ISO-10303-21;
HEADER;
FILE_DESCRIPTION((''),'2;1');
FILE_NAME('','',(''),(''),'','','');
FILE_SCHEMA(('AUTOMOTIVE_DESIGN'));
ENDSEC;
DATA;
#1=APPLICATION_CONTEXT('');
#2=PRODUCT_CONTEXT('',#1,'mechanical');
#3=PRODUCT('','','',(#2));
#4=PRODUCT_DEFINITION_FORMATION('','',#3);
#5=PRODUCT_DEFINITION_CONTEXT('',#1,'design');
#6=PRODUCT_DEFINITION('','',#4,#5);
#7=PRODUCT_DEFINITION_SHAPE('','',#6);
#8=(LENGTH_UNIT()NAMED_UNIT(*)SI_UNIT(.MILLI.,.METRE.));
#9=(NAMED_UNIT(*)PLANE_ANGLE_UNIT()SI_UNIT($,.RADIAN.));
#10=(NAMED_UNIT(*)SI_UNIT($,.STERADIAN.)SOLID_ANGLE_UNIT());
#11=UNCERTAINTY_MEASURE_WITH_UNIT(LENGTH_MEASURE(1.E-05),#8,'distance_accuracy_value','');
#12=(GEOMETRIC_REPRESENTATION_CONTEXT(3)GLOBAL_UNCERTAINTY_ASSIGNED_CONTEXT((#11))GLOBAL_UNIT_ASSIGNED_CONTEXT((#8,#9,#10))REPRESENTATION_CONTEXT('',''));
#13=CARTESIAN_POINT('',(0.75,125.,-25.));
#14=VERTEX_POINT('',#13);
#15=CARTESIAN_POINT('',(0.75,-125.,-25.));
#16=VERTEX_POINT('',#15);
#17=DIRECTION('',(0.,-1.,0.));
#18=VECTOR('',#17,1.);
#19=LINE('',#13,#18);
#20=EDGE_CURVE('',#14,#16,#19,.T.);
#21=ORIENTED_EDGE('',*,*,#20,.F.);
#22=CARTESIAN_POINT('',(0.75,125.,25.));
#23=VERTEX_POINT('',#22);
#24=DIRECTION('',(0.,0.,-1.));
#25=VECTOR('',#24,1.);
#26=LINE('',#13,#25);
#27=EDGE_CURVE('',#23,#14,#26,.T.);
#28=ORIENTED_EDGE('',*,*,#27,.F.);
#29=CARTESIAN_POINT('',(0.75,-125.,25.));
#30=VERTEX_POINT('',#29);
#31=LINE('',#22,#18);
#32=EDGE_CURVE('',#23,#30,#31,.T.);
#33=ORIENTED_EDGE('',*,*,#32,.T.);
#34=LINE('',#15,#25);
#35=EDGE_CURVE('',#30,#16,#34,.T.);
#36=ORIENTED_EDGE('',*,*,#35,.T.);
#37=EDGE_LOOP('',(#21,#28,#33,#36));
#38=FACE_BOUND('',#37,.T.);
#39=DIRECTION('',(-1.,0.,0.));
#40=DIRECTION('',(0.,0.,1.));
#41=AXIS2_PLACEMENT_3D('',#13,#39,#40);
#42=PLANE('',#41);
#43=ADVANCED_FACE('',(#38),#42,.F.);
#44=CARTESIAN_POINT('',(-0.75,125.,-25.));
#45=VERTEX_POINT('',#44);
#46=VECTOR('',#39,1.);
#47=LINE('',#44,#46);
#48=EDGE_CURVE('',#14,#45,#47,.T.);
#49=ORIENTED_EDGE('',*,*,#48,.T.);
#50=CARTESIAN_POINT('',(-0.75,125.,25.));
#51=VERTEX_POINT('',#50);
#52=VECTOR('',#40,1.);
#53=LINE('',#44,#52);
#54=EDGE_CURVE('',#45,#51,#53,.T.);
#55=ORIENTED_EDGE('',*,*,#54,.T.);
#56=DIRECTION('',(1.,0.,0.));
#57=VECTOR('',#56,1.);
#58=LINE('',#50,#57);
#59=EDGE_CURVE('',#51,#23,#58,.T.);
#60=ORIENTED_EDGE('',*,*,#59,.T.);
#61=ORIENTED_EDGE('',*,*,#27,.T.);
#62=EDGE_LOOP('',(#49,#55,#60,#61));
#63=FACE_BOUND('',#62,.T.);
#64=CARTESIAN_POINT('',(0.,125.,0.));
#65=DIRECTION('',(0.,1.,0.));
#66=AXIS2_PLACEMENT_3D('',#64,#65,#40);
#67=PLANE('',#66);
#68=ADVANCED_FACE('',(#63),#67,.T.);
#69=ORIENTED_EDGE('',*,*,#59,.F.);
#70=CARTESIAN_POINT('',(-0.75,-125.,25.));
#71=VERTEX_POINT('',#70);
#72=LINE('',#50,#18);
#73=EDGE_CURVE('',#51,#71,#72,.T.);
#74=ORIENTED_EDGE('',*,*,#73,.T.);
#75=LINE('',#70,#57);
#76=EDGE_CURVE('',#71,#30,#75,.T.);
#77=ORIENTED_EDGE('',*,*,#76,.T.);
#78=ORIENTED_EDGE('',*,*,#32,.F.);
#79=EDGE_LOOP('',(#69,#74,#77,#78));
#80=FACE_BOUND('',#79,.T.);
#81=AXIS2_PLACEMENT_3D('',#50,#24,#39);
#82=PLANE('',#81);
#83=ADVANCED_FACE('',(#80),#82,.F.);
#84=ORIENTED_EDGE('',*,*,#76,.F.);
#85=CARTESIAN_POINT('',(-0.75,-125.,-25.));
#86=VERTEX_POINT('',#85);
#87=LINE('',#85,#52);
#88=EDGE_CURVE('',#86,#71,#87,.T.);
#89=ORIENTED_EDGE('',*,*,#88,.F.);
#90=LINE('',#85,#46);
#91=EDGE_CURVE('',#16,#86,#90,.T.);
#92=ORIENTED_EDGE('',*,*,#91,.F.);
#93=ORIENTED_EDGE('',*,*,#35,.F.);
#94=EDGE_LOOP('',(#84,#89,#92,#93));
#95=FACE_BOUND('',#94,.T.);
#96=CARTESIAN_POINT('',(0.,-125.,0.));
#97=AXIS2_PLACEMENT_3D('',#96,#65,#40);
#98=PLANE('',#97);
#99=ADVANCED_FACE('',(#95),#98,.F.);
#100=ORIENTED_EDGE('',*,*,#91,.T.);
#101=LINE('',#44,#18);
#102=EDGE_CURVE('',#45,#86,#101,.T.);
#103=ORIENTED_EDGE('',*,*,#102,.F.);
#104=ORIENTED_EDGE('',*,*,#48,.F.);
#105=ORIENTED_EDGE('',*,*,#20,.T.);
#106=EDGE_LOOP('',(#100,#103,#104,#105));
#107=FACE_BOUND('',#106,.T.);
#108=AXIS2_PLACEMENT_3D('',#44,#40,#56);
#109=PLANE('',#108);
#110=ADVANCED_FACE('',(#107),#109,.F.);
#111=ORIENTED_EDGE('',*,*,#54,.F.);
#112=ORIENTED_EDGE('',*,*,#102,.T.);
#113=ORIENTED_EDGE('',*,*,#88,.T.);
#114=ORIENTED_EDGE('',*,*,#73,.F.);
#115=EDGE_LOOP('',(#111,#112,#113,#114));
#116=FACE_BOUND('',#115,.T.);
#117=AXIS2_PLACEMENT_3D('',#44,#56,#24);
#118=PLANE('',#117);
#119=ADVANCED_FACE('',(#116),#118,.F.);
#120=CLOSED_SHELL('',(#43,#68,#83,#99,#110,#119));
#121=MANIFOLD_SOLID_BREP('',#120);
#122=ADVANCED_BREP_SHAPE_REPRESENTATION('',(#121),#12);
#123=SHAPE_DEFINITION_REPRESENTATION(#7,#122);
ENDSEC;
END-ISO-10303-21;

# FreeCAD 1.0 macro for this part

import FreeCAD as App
import Part
import Sketcher

V = App.Vector
Q = App.Units.Quantity


def add_polygon(sketch, points):
    """Adds a closed chain of lines whose ends are joined by coincident constraints."""
    first, n = sketch.GeometryCount, len(points)
    for a, b in zip(points, points[1:] + points[:1]):
        sketch.addGeometry(Part.LineSegment(App.Vector(*a, 0), App.Vector(*b, 0)), False)
    for i in range(n):
        sketch.addConstraint(Sketcher.Constraint("Coincident", first + i, 2, first + (i + 1) % n, 1))

doc = App.newDocument("Part")
body = doc.addObject("PartDesign::Body", "Body")

# Sketch on XZ plane
sketch1 = body.newObject("Sketcher::SketchObject", "Sketch")
sketch1.AttachmentSupport = (doc.getObject("XZ_Plane"), [""])
sketch1.MapMode = "FlatFace"
add_polygon(sketch1, [(-0.8, -25), (-0.8, 25), (0.8, 25), (0.8, -25)])  # lines 0-3
sketch1.addConstraint([
    Sketcher.Constraint("Vertical", 0),
    Sketcher.Constraint("Horizontal", 1),
    Sketcher.Constraint("Vertical", 2),
    Sketcher.Constraint("Horizontal", 3),
    Sketcher.Constraint("Symmetric", 0, 2, 2, 2, -1, 1),
    Sketcher.Constraint("DistanceY", 0, 1, 0, 2, Q("50 mm")),
    Sketcher.Constraint("DistanceX", 1, 1, 1, 2, Q("1.5 mm")),
])
pad1 = body.newObject("PartDesign::Pad", "Pad")
pad1.Profile = sketch1
pad1.Length = 250
pad1.Midplane = True

doc.recompute()
